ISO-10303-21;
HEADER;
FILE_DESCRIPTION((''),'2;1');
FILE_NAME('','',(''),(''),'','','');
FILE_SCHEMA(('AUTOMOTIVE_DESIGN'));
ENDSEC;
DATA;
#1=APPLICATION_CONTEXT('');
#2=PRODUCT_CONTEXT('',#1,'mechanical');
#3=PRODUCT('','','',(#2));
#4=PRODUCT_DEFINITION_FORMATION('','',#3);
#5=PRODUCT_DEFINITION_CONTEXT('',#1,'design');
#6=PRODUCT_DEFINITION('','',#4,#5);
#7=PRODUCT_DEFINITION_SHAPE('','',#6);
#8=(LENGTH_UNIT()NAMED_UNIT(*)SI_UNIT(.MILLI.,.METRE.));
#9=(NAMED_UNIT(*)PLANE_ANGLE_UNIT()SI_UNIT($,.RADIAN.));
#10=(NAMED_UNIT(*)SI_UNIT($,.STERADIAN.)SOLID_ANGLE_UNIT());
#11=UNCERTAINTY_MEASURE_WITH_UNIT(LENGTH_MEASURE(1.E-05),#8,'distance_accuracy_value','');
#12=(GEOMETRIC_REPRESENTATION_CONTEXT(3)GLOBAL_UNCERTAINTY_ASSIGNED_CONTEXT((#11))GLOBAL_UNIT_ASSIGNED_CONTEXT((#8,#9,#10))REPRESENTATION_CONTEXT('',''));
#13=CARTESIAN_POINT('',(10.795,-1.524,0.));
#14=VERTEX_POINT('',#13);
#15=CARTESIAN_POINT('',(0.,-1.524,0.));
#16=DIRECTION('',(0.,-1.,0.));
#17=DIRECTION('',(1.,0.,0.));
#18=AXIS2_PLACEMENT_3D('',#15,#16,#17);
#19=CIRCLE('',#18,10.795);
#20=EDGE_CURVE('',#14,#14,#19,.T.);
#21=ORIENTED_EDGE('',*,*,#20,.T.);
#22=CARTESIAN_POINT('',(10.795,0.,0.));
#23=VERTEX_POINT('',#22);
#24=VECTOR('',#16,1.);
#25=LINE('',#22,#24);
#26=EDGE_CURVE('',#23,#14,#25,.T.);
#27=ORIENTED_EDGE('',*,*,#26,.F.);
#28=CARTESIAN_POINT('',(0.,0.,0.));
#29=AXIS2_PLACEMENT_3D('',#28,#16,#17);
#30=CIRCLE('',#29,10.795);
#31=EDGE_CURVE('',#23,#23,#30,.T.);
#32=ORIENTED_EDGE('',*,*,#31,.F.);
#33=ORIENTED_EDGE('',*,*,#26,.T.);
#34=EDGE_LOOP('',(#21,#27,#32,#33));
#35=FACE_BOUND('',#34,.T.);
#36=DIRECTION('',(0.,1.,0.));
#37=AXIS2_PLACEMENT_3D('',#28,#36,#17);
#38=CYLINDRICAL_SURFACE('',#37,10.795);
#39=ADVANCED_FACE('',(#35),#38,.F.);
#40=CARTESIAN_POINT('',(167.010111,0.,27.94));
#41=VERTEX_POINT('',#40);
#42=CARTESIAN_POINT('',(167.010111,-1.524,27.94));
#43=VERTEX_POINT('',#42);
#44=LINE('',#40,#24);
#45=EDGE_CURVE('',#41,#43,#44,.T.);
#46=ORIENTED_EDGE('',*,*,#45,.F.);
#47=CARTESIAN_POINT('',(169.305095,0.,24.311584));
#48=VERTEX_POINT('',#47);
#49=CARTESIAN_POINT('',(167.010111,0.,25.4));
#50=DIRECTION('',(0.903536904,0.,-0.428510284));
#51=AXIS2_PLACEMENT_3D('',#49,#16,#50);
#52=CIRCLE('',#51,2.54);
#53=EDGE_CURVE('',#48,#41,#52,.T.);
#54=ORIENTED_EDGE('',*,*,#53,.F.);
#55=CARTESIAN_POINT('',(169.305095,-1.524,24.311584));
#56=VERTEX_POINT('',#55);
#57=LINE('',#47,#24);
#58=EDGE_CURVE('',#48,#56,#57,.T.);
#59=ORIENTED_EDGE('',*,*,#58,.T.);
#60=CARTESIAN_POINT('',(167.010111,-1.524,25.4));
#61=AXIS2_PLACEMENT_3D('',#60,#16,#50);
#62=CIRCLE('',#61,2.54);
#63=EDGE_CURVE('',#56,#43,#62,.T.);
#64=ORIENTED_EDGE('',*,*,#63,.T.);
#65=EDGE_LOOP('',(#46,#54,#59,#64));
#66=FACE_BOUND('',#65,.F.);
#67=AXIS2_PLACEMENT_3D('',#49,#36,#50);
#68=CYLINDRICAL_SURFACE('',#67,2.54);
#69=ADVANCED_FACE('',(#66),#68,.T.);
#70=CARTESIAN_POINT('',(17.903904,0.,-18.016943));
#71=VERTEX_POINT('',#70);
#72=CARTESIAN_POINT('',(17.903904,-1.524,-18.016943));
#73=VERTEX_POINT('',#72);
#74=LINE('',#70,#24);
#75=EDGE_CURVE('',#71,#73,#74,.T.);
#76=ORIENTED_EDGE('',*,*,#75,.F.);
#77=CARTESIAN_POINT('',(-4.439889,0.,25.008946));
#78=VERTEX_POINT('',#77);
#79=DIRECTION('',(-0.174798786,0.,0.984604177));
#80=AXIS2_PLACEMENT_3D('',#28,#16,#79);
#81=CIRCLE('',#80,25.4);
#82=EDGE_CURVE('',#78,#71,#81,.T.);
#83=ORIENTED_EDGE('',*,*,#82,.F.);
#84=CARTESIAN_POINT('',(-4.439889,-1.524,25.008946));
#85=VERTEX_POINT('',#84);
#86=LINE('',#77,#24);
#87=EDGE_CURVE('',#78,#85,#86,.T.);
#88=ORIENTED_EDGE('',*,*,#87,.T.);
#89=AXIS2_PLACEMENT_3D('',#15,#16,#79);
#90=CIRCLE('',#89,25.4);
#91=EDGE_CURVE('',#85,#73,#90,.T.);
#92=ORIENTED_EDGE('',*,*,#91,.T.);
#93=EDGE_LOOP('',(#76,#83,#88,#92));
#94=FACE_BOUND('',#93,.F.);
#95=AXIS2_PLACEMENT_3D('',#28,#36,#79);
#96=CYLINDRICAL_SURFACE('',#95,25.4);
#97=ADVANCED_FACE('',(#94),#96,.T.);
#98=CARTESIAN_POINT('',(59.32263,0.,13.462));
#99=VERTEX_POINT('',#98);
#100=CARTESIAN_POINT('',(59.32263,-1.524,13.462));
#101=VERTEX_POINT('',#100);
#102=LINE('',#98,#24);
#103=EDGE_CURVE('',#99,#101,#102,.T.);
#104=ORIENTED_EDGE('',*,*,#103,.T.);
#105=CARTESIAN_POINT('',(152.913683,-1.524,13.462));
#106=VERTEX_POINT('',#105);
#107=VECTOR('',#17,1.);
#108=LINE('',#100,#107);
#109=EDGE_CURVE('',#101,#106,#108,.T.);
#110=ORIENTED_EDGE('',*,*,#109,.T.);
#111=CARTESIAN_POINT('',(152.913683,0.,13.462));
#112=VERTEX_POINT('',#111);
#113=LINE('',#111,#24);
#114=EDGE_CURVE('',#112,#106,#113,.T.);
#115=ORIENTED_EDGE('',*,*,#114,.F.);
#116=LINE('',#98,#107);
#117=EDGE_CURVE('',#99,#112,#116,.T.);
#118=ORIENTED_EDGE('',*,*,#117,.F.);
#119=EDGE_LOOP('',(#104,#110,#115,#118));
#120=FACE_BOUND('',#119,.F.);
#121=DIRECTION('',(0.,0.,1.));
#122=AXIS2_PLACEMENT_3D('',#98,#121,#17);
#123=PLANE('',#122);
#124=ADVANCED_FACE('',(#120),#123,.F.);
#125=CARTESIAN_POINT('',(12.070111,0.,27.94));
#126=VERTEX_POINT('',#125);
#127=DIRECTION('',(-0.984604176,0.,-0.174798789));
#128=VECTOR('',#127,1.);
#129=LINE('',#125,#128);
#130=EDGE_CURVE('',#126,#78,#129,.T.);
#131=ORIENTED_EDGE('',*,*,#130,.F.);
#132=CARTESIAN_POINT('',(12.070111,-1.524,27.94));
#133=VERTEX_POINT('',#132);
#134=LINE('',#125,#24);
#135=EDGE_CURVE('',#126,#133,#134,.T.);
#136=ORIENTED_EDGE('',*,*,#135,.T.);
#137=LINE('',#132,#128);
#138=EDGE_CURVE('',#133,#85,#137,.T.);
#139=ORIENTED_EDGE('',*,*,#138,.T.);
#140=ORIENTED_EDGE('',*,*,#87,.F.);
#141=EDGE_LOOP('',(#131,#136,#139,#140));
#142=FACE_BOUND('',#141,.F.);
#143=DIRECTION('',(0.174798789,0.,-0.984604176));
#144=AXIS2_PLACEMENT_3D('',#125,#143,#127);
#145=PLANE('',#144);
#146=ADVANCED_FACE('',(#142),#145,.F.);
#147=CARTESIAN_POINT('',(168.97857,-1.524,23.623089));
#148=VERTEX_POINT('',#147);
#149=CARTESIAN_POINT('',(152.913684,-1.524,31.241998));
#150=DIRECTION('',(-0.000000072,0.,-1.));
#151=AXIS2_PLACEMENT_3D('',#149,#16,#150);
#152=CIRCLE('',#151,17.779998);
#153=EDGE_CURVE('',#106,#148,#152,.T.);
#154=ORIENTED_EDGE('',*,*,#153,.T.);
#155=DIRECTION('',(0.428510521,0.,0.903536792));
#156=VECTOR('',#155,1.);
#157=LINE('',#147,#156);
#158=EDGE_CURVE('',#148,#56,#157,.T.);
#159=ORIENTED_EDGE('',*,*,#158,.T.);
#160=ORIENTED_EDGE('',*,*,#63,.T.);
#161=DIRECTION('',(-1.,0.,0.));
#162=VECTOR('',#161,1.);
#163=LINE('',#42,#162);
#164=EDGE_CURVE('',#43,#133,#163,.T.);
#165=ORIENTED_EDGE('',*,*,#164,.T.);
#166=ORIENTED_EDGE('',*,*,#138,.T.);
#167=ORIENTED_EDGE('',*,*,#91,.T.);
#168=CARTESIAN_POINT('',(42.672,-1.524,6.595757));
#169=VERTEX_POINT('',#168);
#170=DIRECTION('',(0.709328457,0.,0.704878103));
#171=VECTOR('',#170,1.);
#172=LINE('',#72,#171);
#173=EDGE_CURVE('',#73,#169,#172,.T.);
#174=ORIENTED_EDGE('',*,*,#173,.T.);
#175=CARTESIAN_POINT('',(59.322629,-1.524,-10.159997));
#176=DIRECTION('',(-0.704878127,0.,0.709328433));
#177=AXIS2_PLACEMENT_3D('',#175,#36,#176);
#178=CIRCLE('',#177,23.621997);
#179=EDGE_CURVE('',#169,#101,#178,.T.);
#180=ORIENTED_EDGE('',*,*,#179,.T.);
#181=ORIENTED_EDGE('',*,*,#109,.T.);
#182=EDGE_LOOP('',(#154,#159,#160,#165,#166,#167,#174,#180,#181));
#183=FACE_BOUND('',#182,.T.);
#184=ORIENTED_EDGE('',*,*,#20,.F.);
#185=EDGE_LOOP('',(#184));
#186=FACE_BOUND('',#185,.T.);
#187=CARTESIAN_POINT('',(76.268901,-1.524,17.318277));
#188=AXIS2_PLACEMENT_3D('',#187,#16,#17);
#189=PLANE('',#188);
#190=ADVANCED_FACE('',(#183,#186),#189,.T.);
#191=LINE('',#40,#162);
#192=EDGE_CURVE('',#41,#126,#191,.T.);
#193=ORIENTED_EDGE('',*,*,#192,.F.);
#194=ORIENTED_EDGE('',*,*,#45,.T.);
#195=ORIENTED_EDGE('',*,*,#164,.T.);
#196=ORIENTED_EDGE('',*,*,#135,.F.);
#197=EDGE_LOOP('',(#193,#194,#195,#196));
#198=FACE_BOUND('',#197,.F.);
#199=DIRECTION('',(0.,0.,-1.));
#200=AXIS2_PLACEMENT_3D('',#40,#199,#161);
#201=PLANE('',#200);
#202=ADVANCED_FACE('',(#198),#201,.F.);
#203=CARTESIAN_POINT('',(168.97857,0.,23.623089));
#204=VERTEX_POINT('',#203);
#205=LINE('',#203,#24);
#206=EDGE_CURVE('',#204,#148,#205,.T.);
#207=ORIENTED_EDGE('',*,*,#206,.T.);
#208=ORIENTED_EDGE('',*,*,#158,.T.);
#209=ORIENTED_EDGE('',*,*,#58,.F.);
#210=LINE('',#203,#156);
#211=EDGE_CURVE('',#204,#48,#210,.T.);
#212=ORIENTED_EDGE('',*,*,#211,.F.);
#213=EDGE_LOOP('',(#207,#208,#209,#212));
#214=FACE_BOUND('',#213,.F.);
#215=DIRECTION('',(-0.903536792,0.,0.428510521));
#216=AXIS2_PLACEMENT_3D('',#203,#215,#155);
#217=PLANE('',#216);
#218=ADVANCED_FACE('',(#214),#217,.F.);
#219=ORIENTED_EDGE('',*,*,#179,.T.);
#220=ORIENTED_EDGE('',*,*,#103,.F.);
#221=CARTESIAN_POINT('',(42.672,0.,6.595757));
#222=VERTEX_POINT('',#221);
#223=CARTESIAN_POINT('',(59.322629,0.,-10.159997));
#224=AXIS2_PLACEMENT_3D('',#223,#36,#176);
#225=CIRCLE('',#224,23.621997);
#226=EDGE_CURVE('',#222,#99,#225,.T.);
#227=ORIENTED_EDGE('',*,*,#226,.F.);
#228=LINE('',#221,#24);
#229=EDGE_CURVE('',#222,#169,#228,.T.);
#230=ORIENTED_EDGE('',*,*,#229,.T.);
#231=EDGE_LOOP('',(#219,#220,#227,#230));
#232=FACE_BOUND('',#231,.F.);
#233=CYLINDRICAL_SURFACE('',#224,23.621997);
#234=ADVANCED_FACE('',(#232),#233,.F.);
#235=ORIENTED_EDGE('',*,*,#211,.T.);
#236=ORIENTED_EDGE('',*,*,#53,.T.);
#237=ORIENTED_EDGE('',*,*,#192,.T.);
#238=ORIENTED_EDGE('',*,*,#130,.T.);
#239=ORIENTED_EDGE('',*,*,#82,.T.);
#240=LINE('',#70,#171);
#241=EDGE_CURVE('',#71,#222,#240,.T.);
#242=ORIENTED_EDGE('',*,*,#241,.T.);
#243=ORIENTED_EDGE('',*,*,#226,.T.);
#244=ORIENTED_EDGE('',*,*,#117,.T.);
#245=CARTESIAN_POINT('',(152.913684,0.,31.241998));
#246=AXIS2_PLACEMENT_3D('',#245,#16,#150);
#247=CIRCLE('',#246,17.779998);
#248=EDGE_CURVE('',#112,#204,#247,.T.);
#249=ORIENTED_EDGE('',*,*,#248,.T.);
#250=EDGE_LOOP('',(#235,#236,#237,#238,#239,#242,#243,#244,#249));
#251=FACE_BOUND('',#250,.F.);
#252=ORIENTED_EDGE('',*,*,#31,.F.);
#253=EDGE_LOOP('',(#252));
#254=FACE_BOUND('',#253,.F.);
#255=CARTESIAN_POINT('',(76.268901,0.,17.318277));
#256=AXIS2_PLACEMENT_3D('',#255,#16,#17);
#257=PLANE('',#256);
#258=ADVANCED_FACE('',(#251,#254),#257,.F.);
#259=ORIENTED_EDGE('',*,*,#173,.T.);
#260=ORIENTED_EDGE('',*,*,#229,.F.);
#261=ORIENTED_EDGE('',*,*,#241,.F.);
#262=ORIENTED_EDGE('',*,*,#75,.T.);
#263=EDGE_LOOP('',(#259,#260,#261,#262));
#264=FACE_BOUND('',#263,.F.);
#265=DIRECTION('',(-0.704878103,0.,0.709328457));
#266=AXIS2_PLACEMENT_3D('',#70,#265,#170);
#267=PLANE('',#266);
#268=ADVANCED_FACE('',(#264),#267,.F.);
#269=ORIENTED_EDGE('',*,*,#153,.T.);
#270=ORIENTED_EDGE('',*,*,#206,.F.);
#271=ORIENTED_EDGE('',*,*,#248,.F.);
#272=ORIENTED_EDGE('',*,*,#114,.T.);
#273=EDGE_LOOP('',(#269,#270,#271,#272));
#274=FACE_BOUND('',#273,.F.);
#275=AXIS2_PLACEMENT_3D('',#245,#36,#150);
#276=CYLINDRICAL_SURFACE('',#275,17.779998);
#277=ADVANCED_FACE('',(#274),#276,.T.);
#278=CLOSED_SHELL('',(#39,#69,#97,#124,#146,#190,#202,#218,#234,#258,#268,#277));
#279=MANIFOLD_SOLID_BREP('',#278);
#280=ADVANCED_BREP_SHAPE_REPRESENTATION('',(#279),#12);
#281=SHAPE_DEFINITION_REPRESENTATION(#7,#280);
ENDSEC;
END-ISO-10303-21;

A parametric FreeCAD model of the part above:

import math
import FreeCAD as App
import Part
import Sketcher
Q = App.Units.Quantity

doc = App.newDocument("Part")
body = doc.addObject("PartDesign::Body", "Body")

# Sketch on XZ plane
sketch1 = body.newObject("Sketcher::SketchObject", "Sketch")
sketch1.AttachmentSupport = (doc.getObject("XZ_Plane"), [""])
sketch1.MapMode = "FlatFace"
sketch1.addGeometry(Part.LineSegment(App.Vector(17.903904, -18.016943, 0), App.Vector(42.672, 6.595757, 0)), False)
sketch1.addGeometry(Part.ArcOfCircle(Part.Circle(App.Vector(59.322629, -10.159997, 0), App.Vector(0, 0, 1), 23.621997), math.radians(89.999998), math.radians(134.819699)), False)
sketch1.addGeometry(Part.LineSegment(App.Vector(59.32263, 13.462, 0), App.Vector(152.913683, 13.462, 0)), False)
sketch1.addGeometry(Part.ArcOfCircle(Part.Circle(App.Vector(152.913684, 31.241998, 0), App.Vector(0, 0, 1), 17.779998), math.radians(-90.000004), math.radians(-25.373045)), False)
sketch1.addGeometry(Part.LineSegment(App.Vector(168.97857, 23.623089, 0), App.Vector(169.305095, 24.311584, 0)), False)
sketch1.addGeometry(Part.ArcOfCircle(Part.Circle(App.Vector(167.010111, 25.4, 0), App.Vector(0, 0, 1), 2.54), math.radians(-25.373056), math.radians(90.000008)), False)
sketch1.addGeometry(Part.LineSegment(App.Vector(167.010111, 27.94, 0), App.Vector(12.070111, 27.94, 0)), False)
sketch1.addGeometry(Part.LineSegment(App.Vector(12.070111, 27.94, 0), App.Vector(-4.439889, 25.008946, 0)), False)
sketch1.addGeometry(Part.ArcOfCircle(Part.Circle(App.Vector(0, 0, 0), App.Vector(0, 0, 1), 25.4), math.radians(100.066949), math.radians(314.819697)), False)
sketch1.addGeometry(Part.Circle(App.Vector(0, 0, 0), App.Vector(0, 0, 1), 10.795), False)
sketch1.addConstraint(Sketcher.Constraint("Tangent", 0, 2, 1, 2))
sketch1.addConstraint(Sketcher.Constraint("Tangent", 1, 1, 2, 1))
sketch1.addConstraint(Sketcher.Constraint("Tangent", 2, 2, 3, 1))
sketch1.addConstraint(Sketcher.Constraint("Tangent", 3, 2, 4, 1))
sketch1.addConstraint(Sketcher.Constraint("Tangent", 4, 2, 5, 1))
sketch1.addConstraint(Sketcher.Constraint("Tangent", 5, 2, 6, 1))
sketch1.addConstraint(Sketcher.Constraint("Coincident", 6, 2, 7, 1))
sketch1.addConstraint(Sketcher.Constraint("Tangent", 7, 2, 8, 1))
sketch1.addConstraint(Sketcher.Constraint("Tangent", 8, 2, 0, 1))
sketch1.addConstraint(Sketcher.Constraint("Horizontal", 2))
sketch1.addConstraint(Sketcher.Constraint("Horizontal", 6))
sketch1.addConstraint(Sketcher.Constraint("Coincident", 8, 3, -1, 1))
sketch1.addConstraint(Sketcher.Constraint("Coincident", 9, 3, -1, 1))
sketch1.addConstraint(Sketcher.Constraint("Radius", 8, Q("1 in")))
sketch1.addConstraint(Sketcher.Constraint("Radius", 3, Q("0.6999999 in")))
sketch1.addConstraint(Sketcher.Constraint("Radius", 5, Q("0.1 in")))
sketch1.addConstraint(Sketcher.Constraint("Diameter", 9, Q("0.85 in")))
sketch1.addConstraint(Sketcher.Constraint("Radius", 1, Q("0.9299999 in")))
sketch1.addConstraint(Sketcher.Constraint("DistanceX", 6, 2, 6, 1, Q("6.1 in")))
sketch1.addConstraint(Sketcher.Constraint("DistanceY", -1, 1, 5, 3, Q("1 in")))
sketch1.addConstraint(Sketcher.Constraint("DistanceY", 1, 3, -1, 1, Q("0.3999999 in")))
sketch1.addConstraint(Sketcher.Constraint("Distance", 4, Q("0.03 in")))
sketch1.addConstraint(Sketcher.Constraint("DistanceX", -1, 1, 0, 2, Q("1.68 in")))
sketch1.addConstraint(Sketcher.Constraint("DistanceX", 7, 2, 6, 2, Q("0.65 in")))
pad1 = body.newObject("PartDesign::Pad", "Pad")
pad1.Profile = sketch1
pad1.Length = Q("0.06 in")

doc.recompute()
